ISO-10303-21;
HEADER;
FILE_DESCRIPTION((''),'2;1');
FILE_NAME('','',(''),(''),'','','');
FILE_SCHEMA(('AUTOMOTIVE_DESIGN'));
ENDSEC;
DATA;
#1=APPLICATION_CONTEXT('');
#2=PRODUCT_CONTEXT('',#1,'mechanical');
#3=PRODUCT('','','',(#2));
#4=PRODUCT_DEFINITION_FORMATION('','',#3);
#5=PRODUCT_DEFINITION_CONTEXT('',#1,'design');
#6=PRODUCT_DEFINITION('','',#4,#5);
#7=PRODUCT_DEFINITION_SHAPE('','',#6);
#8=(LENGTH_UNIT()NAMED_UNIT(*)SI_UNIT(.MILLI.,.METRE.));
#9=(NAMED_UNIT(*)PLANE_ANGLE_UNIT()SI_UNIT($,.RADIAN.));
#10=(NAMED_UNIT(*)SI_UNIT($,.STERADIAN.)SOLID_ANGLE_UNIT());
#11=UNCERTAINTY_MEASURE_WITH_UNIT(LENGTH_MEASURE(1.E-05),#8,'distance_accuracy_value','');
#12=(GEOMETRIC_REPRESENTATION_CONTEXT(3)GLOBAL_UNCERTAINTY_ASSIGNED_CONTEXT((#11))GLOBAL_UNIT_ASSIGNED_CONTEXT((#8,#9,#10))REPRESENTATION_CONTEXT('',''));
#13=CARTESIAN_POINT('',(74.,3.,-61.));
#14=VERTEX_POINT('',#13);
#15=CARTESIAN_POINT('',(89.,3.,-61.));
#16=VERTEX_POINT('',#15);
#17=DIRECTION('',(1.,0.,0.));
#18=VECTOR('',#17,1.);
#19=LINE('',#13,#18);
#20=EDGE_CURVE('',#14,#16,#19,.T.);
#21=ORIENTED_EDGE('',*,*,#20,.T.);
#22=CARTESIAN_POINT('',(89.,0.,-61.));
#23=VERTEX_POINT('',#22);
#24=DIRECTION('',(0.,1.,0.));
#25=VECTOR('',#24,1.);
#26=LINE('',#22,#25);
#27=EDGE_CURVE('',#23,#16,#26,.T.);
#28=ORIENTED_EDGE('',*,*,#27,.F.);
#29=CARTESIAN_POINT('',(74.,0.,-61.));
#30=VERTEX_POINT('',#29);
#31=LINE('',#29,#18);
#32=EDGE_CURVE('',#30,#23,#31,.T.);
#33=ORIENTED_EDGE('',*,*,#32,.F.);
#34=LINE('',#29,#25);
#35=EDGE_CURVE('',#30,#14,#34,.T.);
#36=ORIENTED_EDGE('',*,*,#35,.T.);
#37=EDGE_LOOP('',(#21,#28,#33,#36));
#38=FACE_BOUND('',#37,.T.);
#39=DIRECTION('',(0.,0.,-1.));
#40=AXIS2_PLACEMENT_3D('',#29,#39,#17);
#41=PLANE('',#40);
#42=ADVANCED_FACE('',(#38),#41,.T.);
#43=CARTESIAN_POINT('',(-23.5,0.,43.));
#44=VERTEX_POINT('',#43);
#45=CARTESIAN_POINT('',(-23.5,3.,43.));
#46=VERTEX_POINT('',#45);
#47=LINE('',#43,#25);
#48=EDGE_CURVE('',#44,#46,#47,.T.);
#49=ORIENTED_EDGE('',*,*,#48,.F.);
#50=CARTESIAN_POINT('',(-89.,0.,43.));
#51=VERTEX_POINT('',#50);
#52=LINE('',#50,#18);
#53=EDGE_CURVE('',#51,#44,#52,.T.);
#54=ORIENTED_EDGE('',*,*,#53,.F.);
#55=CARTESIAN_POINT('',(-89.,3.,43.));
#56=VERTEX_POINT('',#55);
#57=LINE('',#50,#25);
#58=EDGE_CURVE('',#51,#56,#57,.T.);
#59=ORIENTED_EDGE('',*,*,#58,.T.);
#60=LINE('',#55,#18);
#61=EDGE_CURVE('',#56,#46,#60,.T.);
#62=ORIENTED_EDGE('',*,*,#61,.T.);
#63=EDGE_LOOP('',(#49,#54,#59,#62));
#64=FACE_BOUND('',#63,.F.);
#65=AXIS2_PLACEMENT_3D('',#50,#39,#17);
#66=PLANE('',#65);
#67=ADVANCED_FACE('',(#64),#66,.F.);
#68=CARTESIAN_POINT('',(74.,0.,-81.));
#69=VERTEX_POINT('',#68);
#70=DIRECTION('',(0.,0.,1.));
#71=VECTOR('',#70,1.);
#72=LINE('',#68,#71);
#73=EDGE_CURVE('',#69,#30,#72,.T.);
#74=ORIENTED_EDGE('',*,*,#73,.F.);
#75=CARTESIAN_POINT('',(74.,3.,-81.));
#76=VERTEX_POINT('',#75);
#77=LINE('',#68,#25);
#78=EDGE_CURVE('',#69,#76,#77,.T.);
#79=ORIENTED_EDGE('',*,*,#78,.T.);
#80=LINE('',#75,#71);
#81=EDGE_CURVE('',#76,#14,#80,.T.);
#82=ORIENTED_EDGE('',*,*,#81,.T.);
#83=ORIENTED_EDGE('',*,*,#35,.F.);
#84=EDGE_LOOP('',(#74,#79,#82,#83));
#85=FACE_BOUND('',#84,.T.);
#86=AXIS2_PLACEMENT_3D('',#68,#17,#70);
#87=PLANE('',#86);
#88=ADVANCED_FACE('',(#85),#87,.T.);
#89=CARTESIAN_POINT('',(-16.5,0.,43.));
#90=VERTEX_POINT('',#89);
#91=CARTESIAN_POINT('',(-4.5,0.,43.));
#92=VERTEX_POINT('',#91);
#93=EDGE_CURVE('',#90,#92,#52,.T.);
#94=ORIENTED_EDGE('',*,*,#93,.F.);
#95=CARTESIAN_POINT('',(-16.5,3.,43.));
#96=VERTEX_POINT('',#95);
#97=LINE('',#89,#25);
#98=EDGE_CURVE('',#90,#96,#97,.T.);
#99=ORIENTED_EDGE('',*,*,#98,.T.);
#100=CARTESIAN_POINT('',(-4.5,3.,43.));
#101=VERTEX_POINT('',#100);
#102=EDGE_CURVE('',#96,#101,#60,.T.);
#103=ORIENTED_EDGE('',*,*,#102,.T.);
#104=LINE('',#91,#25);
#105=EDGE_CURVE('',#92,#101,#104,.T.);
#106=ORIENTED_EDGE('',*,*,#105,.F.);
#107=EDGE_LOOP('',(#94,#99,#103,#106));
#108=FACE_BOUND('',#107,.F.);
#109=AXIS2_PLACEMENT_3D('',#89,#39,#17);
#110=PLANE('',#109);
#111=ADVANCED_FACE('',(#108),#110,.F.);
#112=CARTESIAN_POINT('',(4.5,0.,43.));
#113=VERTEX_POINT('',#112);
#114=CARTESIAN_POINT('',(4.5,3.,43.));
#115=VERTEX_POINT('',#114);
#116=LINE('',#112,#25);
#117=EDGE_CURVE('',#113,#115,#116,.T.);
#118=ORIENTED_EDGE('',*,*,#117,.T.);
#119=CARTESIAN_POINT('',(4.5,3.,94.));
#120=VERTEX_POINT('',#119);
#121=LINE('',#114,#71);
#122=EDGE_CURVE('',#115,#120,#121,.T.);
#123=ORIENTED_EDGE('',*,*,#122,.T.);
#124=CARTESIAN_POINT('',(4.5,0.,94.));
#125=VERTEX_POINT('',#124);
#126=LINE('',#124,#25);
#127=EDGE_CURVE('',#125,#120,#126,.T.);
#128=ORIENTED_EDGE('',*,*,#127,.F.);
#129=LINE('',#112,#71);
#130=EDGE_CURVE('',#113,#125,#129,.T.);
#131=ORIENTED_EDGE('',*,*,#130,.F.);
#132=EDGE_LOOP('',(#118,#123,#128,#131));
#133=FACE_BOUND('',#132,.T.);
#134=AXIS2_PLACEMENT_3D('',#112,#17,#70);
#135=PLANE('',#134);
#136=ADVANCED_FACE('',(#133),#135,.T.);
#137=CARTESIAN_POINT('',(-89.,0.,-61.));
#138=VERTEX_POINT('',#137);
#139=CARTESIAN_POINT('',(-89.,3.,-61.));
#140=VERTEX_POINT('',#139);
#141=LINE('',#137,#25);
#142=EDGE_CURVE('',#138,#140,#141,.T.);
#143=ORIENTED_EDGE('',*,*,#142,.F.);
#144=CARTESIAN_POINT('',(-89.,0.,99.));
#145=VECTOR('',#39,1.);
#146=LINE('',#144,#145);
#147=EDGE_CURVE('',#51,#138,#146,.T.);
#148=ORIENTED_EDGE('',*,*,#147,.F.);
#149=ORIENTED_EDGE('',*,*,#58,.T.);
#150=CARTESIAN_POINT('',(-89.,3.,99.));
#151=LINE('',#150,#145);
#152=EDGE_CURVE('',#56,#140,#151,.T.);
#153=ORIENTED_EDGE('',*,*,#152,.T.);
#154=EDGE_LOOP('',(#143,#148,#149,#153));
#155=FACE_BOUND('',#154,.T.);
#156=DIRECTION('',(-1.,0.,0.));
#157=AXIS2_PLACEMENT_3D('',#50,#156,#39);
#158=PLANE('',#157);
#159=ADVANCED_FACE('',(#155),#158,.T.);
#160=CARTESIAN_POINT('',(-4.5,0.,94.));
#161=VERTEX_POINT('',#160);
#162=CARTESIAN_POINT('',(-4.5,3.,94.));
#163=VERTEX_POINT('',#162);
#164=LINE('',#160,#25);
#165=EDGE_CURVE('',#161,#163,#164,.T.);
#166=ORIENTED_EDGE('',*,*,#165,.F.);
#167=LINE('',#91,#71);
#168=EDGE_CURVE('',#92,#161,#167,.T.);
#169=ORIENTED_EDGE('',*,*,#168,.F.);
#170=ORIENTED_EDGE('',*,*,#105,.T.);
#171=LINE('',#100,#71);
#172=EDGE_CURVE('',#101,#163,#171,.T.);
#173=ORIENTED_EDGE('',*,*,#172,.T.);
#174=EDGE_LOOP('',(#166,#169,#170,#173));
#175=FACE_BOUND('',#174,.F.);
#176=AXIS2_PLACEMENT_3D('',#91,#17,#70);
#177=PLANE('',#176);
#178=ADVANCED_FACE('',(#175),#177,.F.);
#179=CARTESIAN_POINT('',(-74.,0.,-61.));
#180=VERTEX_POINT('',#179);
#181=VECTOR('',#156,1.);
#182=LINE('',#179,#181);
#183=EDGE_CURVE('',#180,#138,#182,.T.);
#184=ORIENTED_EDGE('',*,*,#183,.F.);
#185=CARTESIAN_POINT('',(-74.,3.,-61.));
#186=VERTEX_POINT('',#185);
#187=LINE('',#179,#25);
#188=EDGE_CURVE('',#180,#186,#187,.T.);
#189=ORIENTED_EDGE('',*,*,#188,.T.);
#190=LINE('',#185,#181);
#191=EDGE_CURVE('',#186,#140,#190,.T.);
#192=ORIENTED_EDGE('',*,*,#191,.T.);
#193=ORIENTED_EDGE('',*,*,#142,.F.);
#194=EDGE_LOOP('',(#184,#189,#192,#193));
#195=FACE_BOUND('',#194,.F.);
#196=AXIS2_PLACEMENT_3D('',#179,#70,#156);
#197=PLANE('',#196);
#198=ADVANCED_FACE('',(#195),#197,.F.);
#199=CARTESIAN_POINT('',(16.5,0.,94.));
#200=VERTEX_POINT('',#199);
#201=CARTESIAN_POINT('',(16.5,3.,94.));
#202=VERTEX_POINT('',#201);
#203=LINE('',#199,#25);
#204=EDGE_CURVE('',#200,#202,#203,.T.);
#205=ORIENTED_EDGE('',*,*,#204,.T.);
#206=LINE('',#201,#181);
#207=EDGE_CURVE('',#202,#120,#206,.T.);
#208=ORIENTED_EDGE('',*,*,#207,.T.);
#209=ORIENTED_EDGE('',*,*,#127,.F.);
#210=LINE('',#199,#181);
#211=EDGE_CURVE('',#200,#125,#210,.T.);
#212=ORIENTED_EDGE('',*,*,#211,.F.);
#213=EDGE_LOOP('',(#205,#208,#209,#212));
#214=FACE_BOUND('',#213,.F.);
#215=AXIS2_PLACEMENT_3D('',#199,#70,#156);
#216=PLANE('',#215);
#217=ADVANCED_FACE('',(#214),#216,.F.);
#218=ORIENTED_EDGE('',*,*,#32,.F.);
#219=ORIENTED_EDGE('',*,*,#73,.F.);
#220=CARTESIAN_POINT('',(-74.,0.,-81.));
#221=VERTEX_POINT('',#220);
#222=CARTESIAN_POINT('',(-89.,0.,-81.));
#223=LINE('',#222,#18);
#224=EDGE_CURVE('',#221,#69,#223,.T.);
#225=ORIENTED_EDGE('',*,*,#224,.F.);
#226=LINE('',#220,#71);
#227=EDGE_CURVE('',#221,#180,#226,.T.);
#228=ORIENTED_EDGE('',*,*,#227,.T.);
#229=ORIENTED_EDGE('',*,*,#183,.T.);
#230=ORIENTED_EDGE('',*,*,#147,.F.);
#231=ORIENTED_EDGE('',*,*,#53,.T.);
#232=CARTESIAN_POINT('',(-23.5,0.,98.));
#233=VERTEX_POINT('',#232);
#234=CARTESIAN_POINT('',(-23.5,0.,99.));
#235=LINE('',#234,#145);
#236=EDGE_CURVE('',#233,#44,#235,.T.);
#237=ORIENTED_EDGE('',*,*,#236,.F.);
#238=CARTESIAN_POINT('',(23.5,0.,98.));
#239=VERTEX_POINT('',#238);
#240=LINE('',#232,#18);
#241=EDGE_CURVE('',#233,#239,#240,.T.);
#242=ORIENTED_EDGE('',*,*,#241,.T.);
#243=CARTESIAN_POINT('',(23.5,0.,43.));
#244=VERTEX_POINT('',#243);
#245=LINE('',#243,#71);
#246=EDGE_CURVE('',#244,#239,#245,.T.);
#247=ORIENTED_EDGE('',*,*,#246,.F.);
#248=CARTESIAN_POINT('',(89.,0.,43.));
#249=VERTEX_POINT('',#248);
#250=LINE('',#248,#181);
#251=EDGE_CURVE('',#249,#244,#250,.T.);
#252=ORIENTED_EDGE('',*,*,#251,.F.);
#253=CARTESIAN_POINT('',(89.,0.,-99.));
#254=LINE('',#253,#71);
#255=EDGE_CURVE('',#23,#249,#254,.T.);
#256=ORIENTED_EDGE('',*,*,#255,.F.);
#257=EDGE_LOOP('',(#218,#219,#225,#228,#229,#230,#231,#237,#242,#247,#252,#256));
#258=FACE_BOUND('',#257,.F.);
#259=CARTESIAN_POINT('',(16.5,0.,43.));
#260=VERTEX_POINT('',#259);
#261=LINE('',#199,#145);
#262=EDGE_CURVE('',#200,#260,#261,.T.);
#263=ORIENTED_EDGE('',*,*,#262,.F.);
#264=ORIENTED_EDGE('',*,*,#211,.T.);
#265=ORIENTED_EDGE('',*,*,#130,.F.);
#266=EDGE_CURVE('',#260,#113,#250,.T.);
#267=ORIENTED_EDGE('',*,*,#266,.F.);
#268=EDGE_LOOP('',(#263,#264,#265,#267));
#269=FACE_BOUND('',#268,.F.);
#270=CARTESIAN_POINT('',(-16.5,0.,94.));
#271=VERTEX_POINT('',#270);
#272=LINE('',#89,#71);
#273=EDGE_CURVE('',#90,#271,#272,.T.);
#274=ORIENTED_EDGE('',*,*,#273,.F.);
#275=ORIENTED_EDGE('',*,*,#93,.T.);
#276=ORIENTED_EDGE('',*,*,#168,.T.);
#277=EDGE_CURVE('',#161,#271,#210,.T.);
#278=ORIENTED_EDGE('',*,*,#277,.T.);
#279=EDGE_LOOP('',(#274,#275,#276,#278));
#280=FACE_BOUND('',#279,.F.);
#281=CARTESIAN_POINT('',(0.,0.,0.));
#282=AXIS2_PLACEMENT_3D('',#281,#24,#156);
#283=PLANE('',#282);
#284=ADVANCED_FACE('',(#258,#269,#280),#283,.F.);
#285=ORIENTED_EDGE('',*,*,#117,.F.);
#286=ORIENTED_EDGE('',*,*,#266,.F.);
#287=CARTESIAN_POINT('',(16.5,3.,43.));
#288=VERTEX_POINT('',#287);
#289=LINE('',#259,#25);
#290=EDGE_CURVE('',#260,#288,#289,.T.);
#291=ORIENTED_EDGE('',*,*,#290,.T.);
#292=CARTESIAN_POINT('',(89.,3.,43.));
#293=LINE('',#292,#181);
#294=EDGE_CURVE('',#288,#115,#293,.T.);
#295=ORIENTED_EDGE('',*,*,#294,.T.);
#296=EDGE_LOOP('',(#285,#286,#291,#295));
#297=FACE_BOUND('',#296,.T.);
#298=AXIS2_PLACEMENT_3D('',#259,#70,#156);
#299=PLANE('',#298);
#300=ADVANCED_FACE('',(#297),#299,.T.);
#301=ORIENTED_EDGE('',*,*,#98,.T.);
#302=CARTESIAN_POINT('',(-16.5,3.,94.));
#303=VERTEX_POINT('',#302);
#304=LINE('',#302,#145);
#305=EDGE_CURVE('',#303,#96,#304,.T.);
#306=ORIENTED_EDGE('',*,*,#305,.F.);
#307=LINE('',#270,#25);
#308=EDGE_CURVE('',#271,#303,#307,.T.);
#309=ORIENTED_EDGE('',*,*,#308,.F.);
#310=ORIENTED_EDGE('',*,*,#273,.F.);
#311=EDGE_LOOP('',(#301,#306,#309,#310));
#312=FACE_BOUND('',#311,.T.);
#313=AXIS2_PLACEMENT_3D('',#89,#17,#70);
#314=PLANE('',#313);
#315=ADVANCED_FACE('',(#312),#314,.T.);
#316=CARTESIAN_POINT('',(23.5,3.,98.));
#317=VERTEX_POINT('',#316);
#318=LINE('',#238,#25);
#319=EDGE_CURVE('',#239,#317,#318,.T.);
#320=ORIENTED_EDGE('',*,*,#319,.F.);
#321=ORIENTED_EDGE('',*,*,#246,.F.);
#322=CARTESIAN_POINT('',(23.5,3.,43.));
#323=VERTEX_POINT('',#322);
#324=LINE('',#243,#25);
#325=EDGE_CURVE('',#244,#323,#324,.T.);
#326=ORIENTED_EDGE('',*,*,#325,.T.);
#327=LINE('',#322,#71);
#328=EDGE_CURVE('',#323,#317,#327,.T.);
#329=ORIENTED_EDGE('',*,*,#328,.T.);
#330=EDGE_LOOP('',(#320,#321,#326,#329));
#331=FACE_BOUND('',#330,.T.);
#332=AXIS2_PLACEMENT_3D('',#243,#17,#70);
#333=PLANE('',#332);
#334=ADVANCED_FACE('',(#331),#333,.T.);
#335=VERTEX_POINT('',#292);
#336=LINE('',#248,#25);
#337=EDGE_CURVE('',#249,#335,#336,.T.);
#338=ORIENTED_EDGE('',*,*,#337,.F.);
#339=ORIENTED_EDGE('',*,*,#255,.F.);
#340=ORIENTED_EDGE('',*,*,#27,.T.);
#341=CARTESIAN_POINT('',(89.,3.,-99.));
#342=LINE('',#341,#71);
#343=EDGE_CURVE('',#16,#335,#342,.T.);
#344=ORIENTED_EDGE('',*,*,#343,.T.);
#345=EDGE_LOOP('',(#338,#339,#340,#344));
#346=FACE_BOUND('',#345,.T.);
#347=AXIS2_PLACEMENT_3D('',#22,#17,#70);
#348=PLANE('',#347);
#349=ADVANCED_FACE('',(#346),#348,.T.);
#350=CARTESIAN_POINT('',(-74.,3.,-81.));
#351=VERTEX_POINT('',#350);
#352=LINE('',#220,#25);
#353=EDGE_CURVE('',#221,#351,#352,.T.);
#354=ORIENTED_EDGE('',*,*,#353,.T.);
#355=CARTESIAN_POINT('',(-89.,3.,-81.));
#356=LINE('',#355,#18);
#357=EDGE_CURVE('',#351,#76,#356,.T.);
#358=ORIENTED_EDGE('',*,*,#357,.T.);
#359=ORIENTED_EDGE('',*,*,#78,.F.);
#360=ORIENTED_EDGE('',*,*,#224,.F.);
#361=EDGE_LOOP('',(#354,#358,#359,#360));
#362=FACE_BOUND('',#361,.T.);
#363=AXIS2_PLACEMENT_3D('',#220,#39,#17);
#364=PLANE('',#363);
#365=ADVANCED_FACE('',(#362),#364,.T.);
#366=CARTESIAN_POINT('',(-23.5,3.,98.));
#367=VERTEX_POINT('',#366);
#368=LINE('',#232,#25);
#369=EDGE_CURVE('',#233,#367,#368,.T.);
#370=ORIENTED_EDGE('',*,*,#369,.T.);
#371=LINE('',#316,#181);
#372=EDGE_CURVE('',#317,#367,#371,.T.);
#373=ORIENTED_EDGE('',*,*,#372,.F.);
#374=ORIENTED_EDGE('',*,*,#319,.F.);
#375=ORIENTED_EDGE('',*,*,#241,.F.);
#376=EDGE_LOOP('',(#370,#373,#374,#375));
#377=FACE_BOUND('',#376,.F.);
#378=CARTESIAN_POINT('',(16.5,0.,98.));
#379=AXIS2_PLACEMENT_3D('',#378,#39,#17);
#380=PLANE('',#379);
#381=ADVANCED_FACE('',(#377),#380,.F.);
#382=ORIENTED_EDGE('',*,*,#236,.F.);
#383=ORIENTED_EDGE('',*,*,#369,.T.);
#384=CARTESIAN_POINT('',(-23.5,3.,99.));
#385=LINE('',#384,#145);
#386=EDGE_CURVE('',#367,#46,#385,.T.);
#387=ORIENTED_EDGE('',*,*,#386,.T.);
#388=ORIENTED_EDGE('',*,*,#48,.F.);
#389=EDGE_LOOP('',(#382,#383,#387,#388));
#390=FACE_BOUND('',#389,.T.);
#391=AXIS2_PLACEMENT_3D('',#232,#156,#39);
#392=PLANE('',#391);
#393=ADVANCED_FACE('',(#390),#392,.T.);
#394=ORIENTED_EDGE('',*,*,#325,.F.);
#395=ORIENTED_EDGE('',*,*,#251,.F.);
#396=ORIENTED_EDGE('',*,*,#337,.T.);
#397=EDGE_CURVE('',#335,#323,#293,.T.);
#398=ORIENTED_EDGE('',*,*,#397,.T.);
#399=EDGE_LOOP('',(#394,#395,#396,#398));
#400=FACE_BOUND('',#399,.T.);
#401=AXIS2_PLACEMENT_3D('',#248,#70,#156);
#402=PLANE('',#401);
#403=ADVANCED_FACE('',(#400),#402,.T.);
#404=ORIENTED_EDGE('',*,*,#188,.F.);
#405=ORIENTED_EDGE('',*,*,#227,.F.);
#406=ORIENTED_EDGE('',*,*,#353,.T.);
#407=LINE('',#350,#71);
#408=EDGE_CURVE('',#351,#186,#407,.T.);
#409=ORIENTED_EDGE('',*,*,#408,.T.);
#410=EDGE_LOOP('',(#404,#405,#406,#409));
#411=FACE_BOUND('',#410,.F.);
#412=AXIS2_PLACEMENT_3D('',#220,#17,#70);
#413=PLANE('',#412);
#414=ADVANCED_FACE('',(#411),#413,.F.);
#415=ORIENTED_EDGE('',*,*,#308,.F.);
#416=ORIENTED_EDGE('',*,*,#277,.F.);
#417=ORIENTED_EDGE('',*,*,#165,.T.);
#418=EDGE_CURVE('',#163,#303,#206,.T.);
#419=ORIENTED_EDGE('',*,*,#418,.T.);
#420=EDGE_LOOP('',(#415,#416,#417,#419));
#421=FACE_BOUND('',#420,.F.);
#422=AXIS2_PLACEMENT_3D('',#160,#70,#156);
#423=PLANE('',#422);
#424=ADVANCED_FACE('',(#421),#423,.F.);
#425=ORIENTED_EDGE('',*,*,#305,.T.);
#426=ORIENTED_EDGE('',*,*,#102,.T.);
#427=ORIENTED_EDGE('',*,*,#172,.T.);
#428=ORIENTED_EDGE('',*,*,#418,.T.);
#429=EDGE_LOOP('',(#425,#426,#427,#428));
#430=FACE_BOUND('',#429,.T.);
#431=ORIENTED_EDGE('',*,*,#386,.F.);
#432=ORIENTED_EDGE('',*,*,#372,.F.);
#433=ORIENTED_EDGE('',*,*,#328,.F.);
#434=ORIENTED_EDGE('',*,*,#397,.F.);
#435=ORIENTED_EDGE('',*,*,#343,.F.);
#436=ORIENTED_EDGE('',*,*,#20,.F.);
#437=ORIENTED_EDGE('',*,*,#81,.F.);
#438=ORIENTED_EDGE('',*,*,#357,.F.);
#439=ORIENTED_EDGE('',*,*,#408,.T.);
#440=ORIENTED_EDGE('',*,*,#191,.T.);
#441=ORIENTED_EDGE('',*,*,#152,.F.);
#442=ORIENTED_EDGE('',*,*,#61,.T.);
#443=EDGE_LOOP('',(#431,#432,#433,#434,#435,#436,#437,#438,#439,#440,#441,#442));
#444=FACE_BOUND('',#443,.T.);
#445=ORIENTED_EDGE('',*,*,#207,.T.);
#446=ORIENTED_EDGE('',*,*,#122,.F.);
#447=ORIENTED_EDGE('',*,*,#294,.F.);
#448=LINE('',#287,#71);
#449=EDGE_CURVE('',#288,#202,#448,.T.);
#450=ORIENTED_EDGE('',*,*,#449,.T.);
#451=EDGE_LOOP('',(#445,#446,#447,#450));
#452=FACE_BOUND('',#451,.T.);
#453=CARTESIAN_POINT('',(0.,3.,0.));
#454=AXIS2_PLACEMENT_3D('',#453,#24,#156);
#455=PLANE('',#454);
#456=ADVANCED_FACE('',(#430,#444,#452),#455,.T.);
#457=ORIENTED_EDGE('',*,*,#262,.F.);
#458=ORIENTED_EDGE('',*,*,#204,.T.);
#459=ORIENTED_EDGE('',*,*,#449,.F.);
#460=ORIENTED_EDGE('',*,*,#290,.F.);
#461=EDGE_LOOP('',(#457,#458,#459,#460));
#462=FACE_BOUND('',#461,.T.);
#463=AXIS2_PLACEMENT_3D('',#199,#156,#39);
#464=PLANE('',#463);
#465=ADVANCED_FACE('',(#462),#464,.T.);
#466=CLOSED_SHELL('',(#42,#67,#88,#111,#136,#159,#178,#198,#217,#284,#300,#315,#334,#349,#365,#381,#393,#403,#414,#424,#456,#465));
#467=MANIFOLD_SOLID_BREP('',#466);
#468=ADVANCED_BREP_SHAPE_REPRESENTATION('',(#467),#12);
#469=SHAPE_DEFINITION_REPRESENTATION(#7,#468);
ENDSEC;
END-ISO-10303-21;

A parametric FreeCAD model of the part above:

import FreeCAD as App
import Part
import Sketcher
from FreeCAD import Vector
Q = App.Units.Quantity


def add_polygon(sketch, points):
    """Adds a closed chain of lines whose ends are joined by coincident constraints."""
    first, n = sketch.GeometryCount, len(points)
    for a, b in zip(points, points[1:] + points[:1]):
        sketch.addGeometry(Part.LineSegment(App.Vector(*a, 0), App.Vector(*b, 0)), False)
    for i in range(n):
        sketch.addConstraint(Sketcher.Constraint("Coincident", first + i, 2, first + (i + 1) % n, 1))

doc = App.newDocument("Part")
body = doc.addObject("PartDesign::Body", "Body")

sketch1 = body.newObject("Sketcher::SketchObject", "Sketch")
sketch1.AttachmentSupport = (doc.getObject("XZ_Plane"), [""])
sketch1.MapMode = "FlatFace"
add_polygon(sketch1, [(23.5, 98), (23.5, 43), (89, 43), (89, -61), (74, -61), (74, -81), (-74, -81), (-74, -61), (-89, -61), (-89, 43), (-23.5, 43), (-23.5, 98)])
add_polygon(sketch1, [(16.5, 94), (4.5, 94), (4.5, 43), (16.5, 43)])
add_polygon(sketch1, [(-4.5, 43), (-4.5, 94), (-16.5, 94), (-16.5, 43)])
sketch1.addConstraint([
    Sketcher.Constraint("Vertical", 0),
    Sketcher.Constraint("Horizontal", 1),
    Sketcher.Constraint("Vertical", 2),
    Sketcher.Constraint("Horizontal", 3),
    Sketcher.Constraint("Vertical", 4),
    Sketcher.Constraint("Horizontal", 5),
    Sketcher.Constraint("Vertical", 6),
    Sketcher.Constraint("Horizontal", 7),
    Sketcher.Constraint("Vertical", 8),
    Sketcher.Constraint("Horizontal", 9),
    Sketcher.Constraint("Vertical", 10),
    Sketcher.Constraint("Horizontal", 11),
    Sketcher.Constraint("Horizontal", 12),
    Sketcher.Constraint("Vertical", 13),
    Sketcher.Constraint("Horizontal", 14),
    Sketcher.Constraint("Vertical", 15),
    Sketcher.Constraint("Vertical", 16),
    Sketcher.Constraint("Horizontal", 17),
    Sketcher.Constraint("Vertical", 18),
    Sketcher.Constraint("Horizontal", 19),
    Sketcher.Constraint("Symmetric", 3, 2, 6, 2, -2),
    Sketcher.Constraint("Symmetric", 1, 2, 8, 2, -2),
    Sketcher.Constraint("Symmetric", 12, 2, 16, 2, -2),
    Sketcher.Constraint("Symmetric", 14, 2, 18, 2, -2),
    Sketcher.Constraint("Horizontal", 9, 2, 13, 2),
    Sketcher.Constraint("Equal", 1, 9),
    Sketcher.Constraint("DistanceX", 3, 2, 3, 1, Q("15 mm")),
    Sketcher.Constraint("DistanceY", 0, 2, 0, 1, Q("55 mm")),
    Sketcher.Constraint("DistanceY", 4, 2, 4, 1, Q("20 mm")),
    Sketcher.Constraint("DistanceX", 8, 2, 1, 2, Q("178 mm")),
    Sketcher.Constraint("DistanceY", 12, 2, 11, 2, Q("4 mm")),
    Sketcher.Constraint("DistanceX", 14, 2, 0, 2, Q("7 mm")),
    Sketcher.Constraint("DistanceX", 16, 2, 12, 2, Q("9 mm")),
    Sketcher.Constraint("DistanceX", 11, 1, 11, 2, Q("47 mm")),
    Sketcher.Constraint("DistanceY", 2, 2, 2, 1, Q("104 mm")),
    Sketcher.Constraint("DistanceY", -1, 1, 0, 2, Q("43 mm")),
])
pad1 = body.newObject("PartDesign::Pad", "Pad")
pad1.Profile = sketch1
pad1.Length = 3
pad1.Reversed = True

doc.recompute()
